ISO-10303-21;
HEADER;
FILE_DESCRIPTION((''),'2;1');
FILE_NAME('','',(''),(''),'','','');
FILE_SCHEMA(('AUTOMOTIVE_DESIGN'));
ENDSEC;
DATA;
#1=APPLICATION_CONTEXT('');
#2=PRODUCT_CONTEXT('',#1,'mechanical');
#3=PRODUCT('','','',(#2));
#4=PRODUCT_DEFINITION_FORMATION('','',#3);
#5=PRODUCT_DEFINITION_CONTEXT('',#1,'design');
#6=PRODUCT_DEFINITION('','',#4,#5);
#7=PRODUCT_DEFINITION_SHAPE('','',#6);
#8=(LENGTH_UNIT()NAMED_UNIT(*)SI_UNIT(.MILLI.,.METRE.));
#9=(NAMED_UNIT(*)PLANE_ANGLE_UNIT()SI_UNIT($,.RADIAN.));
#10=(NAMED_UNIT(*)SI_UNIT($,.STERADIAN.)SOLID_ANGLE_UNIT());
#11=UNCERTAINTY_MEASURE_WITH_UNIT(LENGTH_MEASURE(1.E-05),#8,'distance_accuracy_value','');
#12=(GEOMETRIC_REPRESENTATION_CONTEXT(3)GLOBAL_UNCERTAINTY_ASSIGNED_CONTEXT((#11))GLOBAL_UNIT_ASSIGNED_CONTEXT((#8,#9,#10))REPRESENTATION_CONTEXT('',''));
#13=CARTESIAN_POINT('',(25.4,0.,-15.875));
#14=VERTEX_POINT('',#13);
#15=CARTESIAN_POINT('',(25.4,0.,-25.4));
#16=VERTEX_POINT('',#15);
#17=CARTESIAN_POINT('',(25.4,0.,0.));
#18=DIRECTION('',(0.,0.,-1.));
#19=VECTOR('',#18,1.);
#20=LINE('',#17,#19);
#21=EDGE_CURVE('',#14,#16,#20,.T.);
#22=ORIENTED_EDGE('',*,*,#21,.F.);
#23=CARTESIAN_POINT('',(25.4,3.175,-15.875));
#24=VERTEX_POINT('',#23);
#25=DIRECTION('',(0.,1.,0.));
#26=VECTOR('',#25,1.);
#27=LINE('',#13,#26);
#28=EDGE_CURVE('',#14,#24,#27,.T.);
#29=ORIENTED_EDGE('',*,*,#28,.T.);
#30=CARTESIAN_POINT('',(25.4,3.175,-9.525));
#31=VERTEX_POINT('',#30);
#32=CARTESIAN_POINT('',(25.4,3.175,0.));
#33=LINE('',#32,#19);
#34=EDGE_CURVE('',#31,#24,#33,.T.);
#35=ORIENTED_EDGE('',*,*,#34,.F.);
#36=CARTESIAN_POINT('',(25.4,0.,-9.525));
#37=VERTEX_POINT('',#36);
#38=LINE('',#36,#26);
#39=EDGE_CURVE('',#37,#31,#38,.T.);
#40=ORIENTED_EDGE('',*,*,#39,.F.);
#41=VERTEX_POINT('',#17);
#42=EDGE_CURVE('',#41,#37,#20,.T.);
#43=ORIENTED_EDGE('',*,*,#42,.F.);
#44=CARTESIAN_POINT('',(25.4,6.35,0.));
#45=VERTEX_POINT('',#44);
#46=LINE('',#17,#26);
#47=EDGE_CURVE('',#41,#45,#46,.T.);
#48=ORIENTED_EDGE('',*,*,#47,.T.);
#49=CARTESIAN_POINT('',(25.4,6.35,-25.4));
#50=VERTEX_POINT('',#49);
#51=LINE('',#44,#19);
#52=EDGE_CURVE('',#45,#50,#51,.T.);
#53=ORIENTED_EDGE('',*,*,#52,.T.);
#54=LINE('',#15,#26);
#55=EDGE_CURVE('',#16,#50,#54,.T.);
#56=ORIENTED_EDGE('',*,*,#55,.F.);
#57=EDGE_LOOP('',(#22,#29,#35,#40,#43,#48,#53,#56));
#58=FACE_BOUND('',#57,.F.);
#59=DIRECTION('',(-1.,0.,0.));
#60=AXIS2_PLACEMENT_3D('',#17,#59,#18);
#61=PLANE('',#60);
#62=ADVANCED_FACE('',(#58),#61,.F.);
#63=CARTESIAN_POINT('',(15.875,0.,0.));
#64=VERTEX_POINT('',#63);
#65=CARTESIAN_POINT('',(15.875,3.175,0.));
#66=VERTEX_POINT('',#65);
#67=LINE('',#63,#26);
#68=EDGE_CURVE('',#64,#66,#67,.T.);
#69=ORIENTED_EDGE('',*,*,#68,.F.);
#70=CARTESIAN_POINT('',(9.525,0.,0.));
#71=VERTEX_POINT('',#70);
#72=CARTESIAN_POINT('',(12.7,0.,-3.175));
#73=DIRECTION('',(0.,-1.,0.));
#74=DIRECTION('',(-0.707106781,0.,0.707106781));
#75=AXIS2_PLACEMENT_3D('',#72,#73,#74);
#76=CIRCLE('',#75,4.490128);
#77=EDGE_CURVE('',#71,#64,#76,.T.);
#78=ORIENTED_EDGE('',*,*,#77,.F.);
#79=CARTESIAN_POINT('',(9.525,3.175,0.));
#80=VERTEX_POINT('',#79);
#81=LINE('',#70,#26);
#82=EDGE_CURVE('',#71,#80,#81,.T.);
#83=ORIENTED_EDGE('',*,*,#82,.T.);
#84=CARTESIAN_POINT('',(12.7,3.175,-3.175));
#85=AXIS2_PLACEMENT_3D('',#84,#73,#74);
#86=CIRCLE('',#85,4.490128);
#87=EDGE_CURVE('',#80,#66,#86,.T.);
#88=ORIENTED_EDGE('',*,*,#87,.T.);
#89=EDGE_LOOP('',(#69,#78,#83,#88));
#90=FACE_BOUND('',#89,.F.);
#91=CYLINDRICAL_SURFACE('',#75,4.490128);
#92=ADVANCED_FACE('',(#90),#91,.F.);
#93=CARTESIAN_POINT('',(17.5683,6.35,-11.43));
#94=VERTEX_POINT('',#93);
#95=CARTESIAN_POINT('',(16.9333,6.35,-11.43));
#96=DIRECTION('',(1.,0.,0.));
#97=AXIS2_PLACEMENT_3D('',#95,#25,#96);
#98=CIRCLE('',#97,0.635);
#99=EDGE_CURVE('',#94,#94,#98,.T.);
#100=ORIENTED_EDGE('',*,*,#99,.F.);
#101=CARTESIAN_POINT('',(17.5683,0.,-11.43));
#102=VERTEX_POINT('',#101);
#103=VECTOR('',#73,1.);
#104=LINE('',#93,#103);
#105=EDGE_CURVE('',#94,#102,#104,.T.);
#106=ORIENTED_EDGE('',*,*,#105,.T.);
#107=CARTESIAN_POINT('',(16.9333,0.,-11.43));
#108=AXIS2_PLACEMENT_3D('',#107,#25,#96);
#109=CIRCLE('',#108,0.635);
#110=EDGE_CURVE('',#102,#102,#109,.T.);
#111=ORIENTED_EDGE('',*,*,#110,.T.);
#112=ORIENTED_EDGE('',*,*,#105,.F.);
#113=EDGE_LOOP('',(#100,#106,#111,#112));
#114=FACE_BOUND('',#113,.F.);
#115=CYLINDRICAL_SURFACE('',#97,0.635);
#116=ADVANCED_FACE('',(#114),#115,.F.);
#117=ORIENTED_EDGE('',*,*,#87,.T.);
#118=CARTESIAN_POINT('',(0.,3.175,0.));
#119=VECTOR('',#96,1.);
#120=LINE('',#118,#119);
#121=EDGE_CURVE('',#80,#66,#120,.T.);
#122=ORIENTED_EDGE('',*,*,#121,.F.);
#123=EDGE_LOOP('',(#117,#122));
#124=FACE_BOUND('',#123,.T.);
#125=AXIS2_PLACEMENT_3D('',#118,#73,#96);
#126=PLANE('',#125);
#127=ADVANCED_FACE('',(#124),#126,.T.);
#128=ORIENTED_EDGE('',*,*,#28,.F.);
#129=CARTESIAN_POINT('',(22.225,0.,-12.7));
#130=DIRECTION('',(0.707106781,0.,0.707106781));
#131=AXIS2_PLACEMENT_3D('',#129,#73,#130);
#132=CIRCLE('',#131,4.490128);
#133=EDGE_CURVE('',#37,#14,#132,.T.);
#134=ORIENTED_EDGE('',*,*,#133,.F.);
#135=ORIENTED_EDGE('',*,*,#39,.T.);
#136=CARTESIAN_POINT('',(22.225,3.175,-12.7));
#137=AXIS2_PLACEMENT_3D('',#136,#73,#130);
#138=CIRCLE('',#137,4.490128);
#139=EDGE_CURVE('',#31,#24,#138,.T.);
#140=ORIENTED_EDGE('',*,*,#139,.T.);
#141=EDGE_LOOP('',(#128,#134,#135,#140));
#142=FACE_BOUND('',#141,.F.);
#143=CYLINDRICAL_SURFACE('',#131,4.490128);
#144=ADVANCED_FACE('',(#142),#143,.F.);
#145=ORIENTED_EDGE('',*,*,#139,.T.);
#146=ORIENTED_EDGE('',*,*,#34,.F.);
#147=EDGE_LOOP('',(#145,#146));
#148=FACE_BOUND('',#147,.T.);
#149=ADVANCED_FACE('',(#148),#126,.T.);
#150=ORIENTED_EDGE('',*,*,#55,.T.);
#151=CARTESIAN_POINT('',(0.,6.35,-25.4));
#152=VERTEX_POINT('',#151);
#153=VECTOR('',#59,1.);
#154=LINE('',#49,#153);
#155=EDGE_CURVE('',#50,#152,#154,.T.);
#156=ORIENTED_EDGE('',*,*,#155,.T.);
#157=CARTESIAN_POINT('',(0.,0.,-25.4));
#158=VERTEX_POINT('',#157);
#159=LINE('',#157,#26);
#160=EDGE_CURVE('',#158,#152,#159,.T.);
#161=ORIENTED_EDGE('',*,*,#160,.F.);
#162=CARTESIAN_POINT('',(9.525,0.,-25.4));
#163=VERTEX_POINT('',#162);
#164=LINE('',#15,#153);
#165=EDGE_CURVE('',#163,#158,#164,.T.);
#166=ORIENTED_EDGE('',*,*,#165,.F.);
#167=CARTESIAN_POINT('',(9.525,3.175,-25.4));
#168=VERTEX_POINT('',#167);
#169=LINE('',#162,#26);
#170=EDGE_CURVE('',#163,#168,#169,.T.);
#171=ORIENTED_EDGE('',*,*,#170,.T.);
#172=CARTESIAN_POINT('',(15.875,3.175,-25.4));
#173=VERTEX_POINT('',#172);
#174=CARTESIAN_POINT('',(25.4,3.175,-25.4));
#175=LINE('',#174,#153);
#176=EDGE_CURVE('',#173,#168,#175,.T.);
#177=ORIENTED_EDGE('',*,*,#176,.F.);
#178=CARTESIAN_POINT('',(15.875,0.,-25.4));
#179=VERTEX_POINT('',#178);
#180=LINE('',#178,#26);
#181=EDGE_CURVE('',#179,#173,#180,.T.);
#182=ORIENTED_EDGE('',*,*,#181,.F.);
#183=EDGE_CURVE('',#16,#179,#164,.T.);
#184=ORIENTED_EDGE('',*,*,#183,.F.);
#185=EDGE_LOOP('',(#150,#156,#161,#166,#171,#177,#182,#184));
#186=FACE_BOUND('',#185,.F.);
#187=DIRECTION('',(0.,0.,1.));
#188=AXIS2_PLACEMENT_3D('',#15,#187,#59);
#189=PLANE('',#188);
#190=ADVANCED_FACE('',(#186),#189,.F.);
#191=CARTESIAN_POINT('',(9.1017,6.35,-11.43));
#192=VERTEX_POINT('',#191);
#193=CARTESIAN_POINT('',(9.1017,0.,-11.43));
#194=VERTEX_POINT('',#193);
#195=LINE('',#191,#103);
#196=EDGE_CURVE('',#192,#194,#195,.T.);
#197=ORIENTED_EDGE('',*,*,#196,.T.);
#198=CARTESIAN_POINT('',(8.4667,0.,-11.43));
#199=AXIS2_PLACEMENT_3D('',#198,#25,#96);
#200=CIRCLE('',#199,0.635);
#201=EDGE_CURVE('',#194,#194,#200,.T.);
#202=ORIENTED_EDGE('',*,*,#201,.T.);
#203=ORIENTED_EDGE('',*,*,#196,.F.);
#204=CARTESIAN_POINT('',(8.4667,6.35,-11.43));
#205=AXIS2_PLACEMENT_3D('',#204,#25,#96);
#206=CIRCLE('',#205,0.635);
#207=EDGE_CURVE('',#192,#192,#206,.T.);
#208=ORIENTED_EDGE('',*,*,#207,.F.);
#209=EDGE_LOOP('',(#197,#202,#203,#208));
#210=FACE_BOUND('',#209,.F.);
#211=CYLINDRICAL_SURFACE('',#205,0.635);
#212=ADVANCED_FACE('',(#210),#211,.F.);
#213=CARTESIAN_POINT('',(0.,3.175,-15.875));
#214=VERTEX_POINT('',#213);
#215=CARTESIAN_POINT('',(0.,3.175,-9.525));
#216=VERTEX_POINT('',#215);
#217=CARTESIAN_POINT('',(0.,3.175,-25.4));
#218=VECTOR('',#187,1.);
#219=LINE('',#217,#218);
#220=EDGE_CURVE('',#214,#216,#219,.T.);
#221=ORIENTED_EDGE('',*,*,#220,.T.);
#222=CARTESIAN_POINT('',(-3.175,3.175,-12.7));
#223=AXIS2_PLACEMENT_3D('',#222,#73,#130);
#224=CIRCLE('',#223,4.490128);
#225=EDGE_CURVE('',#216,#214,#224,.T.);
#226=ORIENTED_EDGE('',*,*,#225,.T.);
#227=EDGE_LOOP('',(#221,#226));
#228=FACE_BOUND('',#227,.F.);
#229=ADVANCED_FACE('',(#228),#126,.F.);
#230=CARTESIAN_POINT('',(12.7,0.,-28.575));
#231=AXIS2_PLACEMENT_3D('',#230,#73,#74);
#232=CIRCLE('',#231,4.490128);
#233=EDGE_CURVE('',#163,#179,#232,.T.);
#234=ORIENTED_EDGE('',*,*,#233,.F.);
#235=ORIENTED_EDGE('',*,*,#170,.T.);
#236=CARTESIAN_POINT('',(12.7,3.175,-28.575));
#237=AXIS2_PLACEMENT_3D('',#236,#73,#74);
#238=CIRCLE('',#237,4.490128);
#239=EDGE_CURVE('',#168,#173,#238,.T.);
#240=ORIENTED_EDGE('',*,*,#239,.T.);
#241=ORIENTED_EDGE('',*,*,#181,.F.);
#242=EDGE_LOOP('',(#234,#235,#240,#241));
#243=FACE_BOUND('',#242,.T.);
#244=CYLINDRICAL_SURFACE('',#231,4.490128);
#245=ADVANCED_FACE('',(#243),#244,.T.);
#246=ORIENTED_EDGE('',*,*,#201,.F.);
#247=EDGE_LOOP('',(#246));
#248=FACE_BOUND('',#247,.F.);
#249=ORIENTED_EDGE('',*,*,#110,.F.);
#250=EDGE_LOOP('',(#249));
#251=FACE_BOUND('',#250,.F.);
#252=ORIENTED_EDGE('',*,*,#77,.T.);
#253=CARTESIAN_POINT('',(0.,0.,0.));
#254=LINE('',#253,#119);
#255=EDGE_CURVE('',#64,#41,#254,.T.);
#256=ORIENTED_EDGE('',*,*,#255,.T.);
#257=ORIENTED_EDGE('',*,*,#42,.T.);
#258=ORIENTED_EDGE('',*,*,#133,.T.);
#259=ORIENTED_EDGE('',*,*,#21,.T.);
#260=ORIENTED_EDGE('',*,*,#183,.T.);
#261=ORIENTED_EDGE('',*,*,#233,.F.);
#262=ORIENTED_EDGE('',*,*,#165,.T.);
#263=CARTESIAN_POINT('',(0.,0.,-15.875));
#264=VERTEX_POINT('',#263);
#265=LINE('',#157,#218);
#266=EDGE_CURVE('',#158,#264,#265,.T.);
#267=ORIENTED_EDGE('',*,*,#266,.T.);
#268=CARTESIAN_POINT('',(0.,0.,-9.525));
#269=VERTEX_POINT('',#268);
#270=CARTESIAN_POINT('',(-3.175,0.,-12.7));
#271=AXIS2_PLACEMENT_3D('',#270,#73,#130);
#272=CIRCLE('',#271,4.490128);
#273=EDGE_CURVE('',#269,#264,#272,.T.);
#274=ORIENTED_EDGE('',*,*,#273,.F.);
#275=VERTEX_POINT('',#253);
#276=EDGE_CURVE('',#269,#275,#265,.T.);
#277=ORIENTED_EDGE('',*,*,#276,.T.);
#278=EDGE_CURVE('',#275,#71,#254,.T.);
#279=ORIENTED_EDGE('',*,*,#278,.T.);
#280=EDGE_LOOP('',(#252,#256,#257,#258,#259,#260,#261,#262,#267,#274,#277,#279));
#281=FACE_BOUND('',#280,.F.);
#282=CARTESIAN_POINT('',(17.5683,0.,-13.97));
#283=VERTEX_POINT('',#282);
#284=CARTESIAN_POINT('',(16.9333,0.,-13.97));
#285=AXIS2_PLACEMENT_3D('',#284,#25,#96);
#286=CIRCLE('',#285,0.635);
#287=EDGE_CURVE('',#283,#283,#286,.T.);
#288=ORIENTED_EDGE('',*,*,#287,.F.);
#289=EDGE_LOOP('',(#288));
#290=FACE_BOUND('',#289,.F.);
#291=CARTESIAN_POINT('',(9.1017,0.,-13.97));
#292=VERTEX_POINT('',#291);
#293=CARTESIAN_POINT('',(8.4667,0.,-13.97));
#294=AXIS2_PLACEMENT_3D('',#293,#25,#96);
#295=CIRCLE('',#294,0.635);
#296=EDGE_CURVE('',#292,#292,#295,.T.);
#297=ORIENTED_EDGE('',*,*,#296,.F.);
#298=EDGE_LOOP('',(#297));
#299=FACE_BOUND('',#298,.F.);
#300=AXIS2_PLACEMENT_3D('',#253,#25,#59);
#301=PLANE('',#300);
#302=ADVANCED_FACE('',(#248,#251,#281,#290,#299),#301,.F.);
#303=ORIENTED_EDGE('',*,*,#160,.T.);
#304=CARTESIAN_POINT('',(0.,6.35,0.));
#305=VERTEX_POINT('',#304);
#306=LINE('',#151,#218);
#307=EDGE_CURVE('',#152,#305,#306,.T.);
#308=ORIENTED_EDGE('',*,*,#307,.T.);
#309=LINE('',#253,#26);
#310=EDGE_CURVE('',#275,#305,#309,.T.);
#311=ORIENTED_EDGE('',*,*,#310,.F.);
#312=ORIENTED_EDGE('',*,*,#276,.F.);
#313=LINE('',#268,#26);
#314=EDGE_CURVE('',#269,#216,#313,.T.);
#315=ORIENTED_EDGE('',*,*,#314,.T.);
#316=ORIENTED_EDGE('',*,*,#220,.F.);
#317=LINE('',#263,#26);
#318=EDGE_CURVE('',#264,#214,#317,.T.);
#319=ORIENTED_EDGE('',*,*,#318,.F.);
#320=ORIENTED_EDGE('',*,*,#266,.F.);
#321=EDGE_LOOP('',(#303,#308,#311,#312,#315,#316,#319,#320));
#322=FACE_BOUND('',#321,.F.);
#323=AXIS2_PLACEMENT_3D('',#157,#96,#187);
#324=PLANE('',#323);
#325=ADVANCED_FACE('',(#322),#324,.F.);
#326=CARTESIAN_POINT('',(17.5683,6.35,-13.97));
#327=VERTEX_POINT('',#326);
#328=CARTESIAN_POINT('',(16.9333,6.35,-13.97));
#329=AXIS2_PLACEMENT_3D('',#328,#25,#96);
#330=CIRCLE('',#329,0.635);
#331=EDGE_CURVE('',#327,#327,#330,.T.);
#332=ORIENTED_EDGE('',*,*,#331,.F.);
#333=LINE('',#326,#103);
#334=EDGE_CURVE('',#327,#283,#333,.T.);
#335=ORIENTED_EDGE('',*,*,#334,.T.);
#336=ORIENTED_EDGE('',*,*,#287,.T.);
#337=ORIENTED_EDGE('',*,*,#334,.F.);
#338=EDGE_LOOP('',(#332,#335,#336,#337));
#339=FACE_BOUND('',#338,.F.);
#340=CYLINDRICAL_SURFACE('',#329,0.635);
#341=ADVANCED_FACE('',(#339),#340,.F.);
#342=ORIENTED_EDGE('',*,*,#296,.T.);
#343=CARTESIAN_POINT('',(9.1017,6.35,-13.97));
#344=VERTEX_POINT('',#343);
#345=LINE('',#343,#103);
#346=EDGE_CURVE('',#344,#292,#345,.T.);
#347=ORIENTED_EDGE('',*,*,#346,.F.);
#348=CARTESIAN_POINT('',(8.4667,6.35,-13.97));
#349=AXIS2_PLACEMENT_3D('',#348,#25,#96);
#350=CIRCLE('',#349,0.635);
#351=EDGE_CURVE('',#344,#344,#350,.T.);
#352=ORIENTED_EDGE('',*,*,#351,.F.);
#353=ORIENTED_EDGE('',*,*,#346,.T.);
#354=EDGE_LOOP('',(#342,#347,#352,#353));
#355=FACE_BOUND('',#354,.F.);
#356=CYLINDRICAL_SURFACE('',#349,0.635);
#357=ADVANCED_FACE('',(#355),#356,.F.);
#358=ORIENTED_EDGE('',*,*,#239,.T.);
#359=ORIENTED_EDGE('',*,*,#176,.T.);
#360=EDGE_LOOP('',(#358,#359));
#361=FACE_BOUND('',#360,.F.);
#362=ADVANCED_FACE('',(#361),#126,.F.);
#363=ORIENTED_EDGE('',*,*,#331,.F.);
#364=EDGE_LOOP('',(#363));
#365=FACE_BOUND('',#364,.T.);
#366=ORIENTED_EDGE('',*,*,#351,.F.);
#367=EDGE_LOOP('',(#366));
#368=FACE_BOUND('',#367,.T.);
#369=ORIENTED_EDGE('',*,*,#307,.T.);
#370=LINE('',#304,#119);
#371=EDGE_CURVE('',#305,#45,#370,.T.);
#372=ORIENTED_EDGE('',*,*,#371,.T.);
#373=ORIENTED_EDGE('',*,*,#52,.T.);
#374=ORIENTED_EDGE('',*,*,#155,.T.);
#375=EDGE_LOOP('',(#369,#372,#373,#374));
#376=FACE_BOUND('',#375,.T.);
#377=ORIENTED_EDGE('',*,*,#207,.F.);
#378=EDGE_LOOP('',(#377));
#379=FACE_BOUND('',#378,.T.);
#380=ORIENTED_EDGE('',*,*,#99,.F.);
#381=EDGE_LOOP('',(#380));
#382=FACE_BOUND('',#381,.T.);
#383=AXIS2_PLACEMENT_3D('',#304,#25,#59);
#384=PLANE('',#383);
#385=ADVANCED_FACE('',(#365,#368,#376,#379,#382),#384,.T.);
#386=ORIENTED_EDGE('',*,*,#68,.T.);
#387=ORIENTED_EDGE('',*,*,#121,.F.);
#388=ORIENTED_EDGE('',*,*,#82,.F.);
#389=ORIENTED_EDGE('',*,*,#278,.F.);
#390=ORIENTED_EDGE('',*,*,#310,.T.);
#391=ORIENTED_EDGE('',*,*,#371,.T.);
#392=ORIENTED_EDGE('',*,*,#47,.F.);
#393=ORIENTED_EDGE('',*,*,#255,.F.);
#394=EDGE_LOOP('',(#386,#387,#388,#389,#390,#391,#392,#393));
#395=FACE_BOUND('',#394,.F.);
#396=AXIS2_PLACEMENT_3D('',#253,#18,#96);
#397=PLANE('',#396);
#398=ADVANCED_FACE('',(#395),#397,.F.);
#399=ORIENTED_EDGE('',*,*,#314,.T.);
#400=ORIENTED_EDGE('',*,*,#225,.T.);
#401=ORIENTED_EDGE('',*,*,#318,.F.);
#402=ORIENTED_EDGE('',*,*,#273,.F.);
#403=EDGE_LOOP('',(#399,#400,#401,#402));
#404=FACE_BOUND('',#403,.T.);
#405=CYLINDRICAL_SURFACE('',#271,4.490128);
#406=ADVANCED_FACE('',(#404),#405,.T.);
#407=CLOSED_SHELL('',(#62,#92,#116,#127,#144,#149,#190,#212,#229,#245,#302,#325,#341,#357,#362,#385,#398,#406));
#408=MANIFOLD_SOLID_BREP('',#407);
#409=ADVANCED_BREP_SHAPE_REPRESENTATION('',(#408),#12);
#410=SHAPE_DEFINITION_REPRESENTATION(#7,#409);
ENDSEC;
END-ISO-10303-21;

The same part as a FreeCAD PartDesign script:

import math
import FreeCAD as App
import Part
import Sketcher
from FreeCAD import Vector
Q = App.Units.Quantity


def add_polygon(sketch, points):
    """Adds a closed chain of lines whose ends are joined by coincident constraints."""
    first, n = sketch.GeometryCount, len(points)
    for a, b in zip(points, points[1:] + points[:1]):
        sketch.addGeometry(Part.LineSegment(App.Vector(*a, 0), App.Vector(*b, 0)), False)
    for i in range(n):
        sketch.addConstraint(Sketcher.Constraint("Coincident", first + i, 2, first + (i + 1) % n, 1))

doc = App.newDocument("Part")
params = doc.addObject("Spreadsheet::Sheet", "Params")
for row, (alias, value) in enumerate([
    ("sketch1_width", "1 in"),
    ("pad1_length", "0.25 in"),
    ("sketch2_diameter", "0.05 in"),
    ("pocket1_length", "0.25 in"),
    ("sketch3_width", "0.25 in"),
    ("pad2_length", "0.125 in"),
    ("sketch4_height", "0.25 in"),
    ("pocket2_length", "0.125 in"),
    ("sketch5_height", "0.25 in"),
    ("pad3_length", "0.125 in"),
    ("sketch6_width", "0.25 in"),
    ("pocket3_length", "0.125 in"),
], start=1):
    params.set(f"A{row}", alias)
    params.set(f"B{row}", "=" + value)
    params.setAlias(f"B{row}", alias)

body = doc.addObject("PartDesign::Body", "Body")

# Sketch on XZ plane
sketch1 = body.newObject("Sketcher::SketchObject", "Sketch")
sketch1.AttachmentSupport = (doc.getObject("XZ_Plane"), [""])
sketch1.MapMode = "FlatFace"
add_polygon(sketch1, [(0, -25.4), (0, 0), (25.4, 0), (25.4, -25.4)])  # lines 0-3
sketch1.addConstraint([
    Sketcher.Constraint("Vertical", 0),
    Sketcher.Constraint("Horizontal", 1),
    Sketcher.Constraint("Vertical", 2),
    Sketcher.Constraint("Horizontal", 3),
    Sketcher.Constraint("Coincident", 0, 2, -1, 1),
    Sketcher.Constraint("Equal", 3, 0),
    Sketcher.Constraint("DistanceX", 1, 1, 1, 2, Q("1 in")),
])
sketch1.setExpression("Constraints[10]", "Params.sketch1_width")
pad1 = body.newObject("PartDesign::Pad", "Pad")
pad1.Profile = sketch1
pad1.setExpression("Length", "Params.pad1_length")
pad1.Reversed = True

# Sketch on XZ plane
sketch2 = body.newObject("Sketcher::SketchObject", "Sketch001")
sketch2.AttachmentSupport = (doc.getObject("XZ_Plane"), [""])
sketch2.MapMode = "FlatFace"
sketch2.AttachmentOffset = App.Placement(Vector(0, 0, -0.25 * 25.4), App.Rotation())
sketch2.addGeometry([
    Part.Circle(Vector(8.4667, -13.97, 0), Vector(0, 0, 1), 0.635),
    Part.Circle(Vector(16.9333, -13.97, 0), Vector(0, 0, 1), 0.635),
    Part.Circle(Vector(16.9333, -11.43, 0), Vector(0, 0, 1), 0.635),
    Part.Circle(Vector(8.4667, -11.43, 0), Vector(0, 0, 1), 0.635),
], False)
sketch2.addConstraint([
    Sketcher.Constraint("Equal", 0, 1),
    Sketcher.Constraint("Equal", 1, 2),
    Sketcher.Constraint("Equal", 2, 3),
    Sketcher.Constraint("Horizontal", 0, 3, 1, 3),
    Sketcher.Constraint("Horizontal", 2, 3, 3, 3),
    Sketcher.Constraint("Vertical", 1, 3, 2, 3),
    Sketcher.Constraint("Vertical", 0, 3, 3, 3),
    Sketcher.Constraint("Diameter", 0, Q("0.05 in")),
    Sketcher.Constraint("DistanceY", 1, 3, 2, 3, Q("0.1 in")),
    Sketcher.Constraint("DistanceY", 2, 3, -1, 1, Q("0.45 in")),
    Sketcher.Constraint("DistanceX", -1, 1, 0, 3, 8.4667),
    Sketcher.Constraint("DistanceX", 0, 3, 1, 3, 8.4666),
])
sketch2.setExpression("Constraints[7]", "Params.sketch2_diameter")
pocket1 = body.newObject("PartDesign::Pocket", "Pocket")
pocket1.Profile = sketch2
pocket1.setExpression("Length", "Params.pocket1_length")
pocket1.Reversed = True

# Sketch on XZ plane
sketch3 = body.newObject("Sketcher::SketchObject", "Sketch002")
sketch3.AttachmentSupport = (doc.getObject("XZ_Plane"), [""])
sketch3.MapMode = "FlatFace"
sketch3.addGeometry([
    Part.ArcOfCircle(Part.Circle(Vector(12.7, -28.575, 0), Vector(0, 0, 1), 4.490128), math.radians(135), math.radians(405)),
    Part.LineSegment(Vector(15.875, -25.4, 0), Vector(9.525, -25.4, 0)),
], False)
sketch3.addConstraint([
    Sketcher.Constraint("Coincident", 0, 1, 1, 2),
    Sketcher.Constraint("Coincident", 1, 1, 0, 2),
    Sketcher.Constraint("Horizontal", 1),
    Sketcher.Constraint("DistanceX", 1, 2, 1, 1, Q("0.25 in")),
    Sketcher.Constraint("DistanceX", -1, 1, 0, 1, Q("0.375 in")),
    Sketcher.Constraint("DistanceY", 0, 1, -1, 1, Q("1 in")),
    Sketcher.Constraint("Radius", 0, 4.4901),
])
sketch3.setExpression("Constraints[3]", "Params.sketch3_width")
pad2 = body.newObject("PartDesign::Pad", "Pad001")
pad2.Profile = sketch3
pad2.setExpression("Length", "Params.pad2_length")
pad2.Reversed = True

# Sketch on XZ plane
sketch4 = body.newObject("Sketcher::SketchObject", "Sketch003")
sketch4.AttachmentSupport = (doc.getObject("XZ_Plane"), [""])
sketch4.MapMode = "FlatFace"
sketch4.addGeometry([
    Part.LineSegment(Vector(25.4, -15.875, 0), Vector(25.4, -9.525, 0)),
    Part.ArcOfCircle(Part.Circle(Vector(22.225, -12.7, 0), Vector(0, 0, 1), 4.490128), math.radians(45), math.radians(315)),
], False)
sketch4.addConstraint([
    Sketcher.Constraint("Coincident", 0, 1, 1, 2),
    Sketcher.Constraint("Coincident", 1, 1, 0, 2),
    Sketcher.Constraint("Vertical", 0),
    Sketcher.Constraint("DistanceY", 0, 1, 0, 2, Q("0.25 in")),
    Sketcher.Constraint("DistanceY", 1, 1, -1, 1, Q("0.375 in")),
    Sketcher.Constraint("DistanceX", -1, 1, 0, 1, Q("1 in")),
    Sketcher.Constraint("Radius", 1, 4.4901),
])
sketch4.setExpression("Constraints[3]", "Params.sketch4_height")
pocket2 = body.newObject("PartDesign::Pocket", "Pocket001")
pocket2.Profile = sketch4
pocket2.setExpression("Length", "Params.pocket2_length")

# Sketch on XZ plane
sketch5 = body.newObject("Sketcher::SketchObject", "Sketch004")
sketch5.AttachmentSupport = (doc.getObject("XZ_Plane"), [""])
sketch5.MapMode = "FlatFace"
sketch5.addGeometry([
    Part.ArcOfCircle(Part.Circle(Vector(-3.175, -12.7, 0), Vector(0, 0, 1), 4.490128), math.radians(45), math.radians(315)),
    Part.LineSegment(Vector(0, -15.875, 0), Vector(0, -9.525, 0)),
], False)
sketch5.addConstraint([
    Sketcher.Constraint("Coincident", 0, 1, 1, 2),
    Sketcher.Constraint("Coincident", 1, 1, 0, 2),
    Sketcher.Constraint("Vertical", 1),
    Sketcher.Constraint("PointOnObject", 0, 1, -2),
    Sketcher.Constraint("DistanceY", 1, 1, 1, 2, Q("0.25 in")),
    Sketcher.Constraint("DistanceY", 0, 1, -1, 1, Q("0.375 in")),
    Sketcher.Constraint("Radius", 0, 4.4901),
])
sketch5.setExpression("Constraints[4]", "Params.sketch5_height")
pad3 = body.newObject("PartDesign::Pad", "Pad002")
pad3.Profile = sketch5
pad3.setExpression("Length", "Params.pad3_length")
pad3.Reversed = True

# Sketch on XZ plane
sketch6 = body.newObject("Sketcher::SketchObject", "Sketch005")
sketch6.AttachmentSupport = (doc.getObject("XZ_Plane"), [""])
sketch6.MapMode = "FlatFace"
sketch6.addGeometry([
    Part.LineSegment(Vector(15.875, 0, 0), Vector(9.525, 0, 0)),
    Part.ArcOfCircle(Part.Circle(Vector(12.7, -3.175, 0), Vector(0, 0, 1), 4.490128), math.radians(135), math.radians(405)),
], False)
sketch6.addConstraint([
    Sketcher.Constraint("Coincident", 0, 1, 1, 2),
    Sketcher.Constraint("Coincident", 1, 1, 0, 2),
    Sketcher.Constraint("Horizontal", 0),
    Sketcher.Constraint("PointOnObject", 0, 1, -1),
    Sketcher.Constraint("DistanceX", 0, 2, 0, 1, Q("0.25 in")),
    Sketcher.Constraint("DistanceX", -1, 1, 1, 1, Q("0.375 in")),
    Sketcher.Constraint("Radius", 1, 4.4901),
])
sketch6.setExpression("Constraints[4]", "Params.sketch6_width")
pocket3 = body.newObject("PartDesign::Pocket", "Pocket002")
pocket3.Profile = sketch6
pocket3.setExpression("Length", "Params.pocket3_length")

doc.recompute()
